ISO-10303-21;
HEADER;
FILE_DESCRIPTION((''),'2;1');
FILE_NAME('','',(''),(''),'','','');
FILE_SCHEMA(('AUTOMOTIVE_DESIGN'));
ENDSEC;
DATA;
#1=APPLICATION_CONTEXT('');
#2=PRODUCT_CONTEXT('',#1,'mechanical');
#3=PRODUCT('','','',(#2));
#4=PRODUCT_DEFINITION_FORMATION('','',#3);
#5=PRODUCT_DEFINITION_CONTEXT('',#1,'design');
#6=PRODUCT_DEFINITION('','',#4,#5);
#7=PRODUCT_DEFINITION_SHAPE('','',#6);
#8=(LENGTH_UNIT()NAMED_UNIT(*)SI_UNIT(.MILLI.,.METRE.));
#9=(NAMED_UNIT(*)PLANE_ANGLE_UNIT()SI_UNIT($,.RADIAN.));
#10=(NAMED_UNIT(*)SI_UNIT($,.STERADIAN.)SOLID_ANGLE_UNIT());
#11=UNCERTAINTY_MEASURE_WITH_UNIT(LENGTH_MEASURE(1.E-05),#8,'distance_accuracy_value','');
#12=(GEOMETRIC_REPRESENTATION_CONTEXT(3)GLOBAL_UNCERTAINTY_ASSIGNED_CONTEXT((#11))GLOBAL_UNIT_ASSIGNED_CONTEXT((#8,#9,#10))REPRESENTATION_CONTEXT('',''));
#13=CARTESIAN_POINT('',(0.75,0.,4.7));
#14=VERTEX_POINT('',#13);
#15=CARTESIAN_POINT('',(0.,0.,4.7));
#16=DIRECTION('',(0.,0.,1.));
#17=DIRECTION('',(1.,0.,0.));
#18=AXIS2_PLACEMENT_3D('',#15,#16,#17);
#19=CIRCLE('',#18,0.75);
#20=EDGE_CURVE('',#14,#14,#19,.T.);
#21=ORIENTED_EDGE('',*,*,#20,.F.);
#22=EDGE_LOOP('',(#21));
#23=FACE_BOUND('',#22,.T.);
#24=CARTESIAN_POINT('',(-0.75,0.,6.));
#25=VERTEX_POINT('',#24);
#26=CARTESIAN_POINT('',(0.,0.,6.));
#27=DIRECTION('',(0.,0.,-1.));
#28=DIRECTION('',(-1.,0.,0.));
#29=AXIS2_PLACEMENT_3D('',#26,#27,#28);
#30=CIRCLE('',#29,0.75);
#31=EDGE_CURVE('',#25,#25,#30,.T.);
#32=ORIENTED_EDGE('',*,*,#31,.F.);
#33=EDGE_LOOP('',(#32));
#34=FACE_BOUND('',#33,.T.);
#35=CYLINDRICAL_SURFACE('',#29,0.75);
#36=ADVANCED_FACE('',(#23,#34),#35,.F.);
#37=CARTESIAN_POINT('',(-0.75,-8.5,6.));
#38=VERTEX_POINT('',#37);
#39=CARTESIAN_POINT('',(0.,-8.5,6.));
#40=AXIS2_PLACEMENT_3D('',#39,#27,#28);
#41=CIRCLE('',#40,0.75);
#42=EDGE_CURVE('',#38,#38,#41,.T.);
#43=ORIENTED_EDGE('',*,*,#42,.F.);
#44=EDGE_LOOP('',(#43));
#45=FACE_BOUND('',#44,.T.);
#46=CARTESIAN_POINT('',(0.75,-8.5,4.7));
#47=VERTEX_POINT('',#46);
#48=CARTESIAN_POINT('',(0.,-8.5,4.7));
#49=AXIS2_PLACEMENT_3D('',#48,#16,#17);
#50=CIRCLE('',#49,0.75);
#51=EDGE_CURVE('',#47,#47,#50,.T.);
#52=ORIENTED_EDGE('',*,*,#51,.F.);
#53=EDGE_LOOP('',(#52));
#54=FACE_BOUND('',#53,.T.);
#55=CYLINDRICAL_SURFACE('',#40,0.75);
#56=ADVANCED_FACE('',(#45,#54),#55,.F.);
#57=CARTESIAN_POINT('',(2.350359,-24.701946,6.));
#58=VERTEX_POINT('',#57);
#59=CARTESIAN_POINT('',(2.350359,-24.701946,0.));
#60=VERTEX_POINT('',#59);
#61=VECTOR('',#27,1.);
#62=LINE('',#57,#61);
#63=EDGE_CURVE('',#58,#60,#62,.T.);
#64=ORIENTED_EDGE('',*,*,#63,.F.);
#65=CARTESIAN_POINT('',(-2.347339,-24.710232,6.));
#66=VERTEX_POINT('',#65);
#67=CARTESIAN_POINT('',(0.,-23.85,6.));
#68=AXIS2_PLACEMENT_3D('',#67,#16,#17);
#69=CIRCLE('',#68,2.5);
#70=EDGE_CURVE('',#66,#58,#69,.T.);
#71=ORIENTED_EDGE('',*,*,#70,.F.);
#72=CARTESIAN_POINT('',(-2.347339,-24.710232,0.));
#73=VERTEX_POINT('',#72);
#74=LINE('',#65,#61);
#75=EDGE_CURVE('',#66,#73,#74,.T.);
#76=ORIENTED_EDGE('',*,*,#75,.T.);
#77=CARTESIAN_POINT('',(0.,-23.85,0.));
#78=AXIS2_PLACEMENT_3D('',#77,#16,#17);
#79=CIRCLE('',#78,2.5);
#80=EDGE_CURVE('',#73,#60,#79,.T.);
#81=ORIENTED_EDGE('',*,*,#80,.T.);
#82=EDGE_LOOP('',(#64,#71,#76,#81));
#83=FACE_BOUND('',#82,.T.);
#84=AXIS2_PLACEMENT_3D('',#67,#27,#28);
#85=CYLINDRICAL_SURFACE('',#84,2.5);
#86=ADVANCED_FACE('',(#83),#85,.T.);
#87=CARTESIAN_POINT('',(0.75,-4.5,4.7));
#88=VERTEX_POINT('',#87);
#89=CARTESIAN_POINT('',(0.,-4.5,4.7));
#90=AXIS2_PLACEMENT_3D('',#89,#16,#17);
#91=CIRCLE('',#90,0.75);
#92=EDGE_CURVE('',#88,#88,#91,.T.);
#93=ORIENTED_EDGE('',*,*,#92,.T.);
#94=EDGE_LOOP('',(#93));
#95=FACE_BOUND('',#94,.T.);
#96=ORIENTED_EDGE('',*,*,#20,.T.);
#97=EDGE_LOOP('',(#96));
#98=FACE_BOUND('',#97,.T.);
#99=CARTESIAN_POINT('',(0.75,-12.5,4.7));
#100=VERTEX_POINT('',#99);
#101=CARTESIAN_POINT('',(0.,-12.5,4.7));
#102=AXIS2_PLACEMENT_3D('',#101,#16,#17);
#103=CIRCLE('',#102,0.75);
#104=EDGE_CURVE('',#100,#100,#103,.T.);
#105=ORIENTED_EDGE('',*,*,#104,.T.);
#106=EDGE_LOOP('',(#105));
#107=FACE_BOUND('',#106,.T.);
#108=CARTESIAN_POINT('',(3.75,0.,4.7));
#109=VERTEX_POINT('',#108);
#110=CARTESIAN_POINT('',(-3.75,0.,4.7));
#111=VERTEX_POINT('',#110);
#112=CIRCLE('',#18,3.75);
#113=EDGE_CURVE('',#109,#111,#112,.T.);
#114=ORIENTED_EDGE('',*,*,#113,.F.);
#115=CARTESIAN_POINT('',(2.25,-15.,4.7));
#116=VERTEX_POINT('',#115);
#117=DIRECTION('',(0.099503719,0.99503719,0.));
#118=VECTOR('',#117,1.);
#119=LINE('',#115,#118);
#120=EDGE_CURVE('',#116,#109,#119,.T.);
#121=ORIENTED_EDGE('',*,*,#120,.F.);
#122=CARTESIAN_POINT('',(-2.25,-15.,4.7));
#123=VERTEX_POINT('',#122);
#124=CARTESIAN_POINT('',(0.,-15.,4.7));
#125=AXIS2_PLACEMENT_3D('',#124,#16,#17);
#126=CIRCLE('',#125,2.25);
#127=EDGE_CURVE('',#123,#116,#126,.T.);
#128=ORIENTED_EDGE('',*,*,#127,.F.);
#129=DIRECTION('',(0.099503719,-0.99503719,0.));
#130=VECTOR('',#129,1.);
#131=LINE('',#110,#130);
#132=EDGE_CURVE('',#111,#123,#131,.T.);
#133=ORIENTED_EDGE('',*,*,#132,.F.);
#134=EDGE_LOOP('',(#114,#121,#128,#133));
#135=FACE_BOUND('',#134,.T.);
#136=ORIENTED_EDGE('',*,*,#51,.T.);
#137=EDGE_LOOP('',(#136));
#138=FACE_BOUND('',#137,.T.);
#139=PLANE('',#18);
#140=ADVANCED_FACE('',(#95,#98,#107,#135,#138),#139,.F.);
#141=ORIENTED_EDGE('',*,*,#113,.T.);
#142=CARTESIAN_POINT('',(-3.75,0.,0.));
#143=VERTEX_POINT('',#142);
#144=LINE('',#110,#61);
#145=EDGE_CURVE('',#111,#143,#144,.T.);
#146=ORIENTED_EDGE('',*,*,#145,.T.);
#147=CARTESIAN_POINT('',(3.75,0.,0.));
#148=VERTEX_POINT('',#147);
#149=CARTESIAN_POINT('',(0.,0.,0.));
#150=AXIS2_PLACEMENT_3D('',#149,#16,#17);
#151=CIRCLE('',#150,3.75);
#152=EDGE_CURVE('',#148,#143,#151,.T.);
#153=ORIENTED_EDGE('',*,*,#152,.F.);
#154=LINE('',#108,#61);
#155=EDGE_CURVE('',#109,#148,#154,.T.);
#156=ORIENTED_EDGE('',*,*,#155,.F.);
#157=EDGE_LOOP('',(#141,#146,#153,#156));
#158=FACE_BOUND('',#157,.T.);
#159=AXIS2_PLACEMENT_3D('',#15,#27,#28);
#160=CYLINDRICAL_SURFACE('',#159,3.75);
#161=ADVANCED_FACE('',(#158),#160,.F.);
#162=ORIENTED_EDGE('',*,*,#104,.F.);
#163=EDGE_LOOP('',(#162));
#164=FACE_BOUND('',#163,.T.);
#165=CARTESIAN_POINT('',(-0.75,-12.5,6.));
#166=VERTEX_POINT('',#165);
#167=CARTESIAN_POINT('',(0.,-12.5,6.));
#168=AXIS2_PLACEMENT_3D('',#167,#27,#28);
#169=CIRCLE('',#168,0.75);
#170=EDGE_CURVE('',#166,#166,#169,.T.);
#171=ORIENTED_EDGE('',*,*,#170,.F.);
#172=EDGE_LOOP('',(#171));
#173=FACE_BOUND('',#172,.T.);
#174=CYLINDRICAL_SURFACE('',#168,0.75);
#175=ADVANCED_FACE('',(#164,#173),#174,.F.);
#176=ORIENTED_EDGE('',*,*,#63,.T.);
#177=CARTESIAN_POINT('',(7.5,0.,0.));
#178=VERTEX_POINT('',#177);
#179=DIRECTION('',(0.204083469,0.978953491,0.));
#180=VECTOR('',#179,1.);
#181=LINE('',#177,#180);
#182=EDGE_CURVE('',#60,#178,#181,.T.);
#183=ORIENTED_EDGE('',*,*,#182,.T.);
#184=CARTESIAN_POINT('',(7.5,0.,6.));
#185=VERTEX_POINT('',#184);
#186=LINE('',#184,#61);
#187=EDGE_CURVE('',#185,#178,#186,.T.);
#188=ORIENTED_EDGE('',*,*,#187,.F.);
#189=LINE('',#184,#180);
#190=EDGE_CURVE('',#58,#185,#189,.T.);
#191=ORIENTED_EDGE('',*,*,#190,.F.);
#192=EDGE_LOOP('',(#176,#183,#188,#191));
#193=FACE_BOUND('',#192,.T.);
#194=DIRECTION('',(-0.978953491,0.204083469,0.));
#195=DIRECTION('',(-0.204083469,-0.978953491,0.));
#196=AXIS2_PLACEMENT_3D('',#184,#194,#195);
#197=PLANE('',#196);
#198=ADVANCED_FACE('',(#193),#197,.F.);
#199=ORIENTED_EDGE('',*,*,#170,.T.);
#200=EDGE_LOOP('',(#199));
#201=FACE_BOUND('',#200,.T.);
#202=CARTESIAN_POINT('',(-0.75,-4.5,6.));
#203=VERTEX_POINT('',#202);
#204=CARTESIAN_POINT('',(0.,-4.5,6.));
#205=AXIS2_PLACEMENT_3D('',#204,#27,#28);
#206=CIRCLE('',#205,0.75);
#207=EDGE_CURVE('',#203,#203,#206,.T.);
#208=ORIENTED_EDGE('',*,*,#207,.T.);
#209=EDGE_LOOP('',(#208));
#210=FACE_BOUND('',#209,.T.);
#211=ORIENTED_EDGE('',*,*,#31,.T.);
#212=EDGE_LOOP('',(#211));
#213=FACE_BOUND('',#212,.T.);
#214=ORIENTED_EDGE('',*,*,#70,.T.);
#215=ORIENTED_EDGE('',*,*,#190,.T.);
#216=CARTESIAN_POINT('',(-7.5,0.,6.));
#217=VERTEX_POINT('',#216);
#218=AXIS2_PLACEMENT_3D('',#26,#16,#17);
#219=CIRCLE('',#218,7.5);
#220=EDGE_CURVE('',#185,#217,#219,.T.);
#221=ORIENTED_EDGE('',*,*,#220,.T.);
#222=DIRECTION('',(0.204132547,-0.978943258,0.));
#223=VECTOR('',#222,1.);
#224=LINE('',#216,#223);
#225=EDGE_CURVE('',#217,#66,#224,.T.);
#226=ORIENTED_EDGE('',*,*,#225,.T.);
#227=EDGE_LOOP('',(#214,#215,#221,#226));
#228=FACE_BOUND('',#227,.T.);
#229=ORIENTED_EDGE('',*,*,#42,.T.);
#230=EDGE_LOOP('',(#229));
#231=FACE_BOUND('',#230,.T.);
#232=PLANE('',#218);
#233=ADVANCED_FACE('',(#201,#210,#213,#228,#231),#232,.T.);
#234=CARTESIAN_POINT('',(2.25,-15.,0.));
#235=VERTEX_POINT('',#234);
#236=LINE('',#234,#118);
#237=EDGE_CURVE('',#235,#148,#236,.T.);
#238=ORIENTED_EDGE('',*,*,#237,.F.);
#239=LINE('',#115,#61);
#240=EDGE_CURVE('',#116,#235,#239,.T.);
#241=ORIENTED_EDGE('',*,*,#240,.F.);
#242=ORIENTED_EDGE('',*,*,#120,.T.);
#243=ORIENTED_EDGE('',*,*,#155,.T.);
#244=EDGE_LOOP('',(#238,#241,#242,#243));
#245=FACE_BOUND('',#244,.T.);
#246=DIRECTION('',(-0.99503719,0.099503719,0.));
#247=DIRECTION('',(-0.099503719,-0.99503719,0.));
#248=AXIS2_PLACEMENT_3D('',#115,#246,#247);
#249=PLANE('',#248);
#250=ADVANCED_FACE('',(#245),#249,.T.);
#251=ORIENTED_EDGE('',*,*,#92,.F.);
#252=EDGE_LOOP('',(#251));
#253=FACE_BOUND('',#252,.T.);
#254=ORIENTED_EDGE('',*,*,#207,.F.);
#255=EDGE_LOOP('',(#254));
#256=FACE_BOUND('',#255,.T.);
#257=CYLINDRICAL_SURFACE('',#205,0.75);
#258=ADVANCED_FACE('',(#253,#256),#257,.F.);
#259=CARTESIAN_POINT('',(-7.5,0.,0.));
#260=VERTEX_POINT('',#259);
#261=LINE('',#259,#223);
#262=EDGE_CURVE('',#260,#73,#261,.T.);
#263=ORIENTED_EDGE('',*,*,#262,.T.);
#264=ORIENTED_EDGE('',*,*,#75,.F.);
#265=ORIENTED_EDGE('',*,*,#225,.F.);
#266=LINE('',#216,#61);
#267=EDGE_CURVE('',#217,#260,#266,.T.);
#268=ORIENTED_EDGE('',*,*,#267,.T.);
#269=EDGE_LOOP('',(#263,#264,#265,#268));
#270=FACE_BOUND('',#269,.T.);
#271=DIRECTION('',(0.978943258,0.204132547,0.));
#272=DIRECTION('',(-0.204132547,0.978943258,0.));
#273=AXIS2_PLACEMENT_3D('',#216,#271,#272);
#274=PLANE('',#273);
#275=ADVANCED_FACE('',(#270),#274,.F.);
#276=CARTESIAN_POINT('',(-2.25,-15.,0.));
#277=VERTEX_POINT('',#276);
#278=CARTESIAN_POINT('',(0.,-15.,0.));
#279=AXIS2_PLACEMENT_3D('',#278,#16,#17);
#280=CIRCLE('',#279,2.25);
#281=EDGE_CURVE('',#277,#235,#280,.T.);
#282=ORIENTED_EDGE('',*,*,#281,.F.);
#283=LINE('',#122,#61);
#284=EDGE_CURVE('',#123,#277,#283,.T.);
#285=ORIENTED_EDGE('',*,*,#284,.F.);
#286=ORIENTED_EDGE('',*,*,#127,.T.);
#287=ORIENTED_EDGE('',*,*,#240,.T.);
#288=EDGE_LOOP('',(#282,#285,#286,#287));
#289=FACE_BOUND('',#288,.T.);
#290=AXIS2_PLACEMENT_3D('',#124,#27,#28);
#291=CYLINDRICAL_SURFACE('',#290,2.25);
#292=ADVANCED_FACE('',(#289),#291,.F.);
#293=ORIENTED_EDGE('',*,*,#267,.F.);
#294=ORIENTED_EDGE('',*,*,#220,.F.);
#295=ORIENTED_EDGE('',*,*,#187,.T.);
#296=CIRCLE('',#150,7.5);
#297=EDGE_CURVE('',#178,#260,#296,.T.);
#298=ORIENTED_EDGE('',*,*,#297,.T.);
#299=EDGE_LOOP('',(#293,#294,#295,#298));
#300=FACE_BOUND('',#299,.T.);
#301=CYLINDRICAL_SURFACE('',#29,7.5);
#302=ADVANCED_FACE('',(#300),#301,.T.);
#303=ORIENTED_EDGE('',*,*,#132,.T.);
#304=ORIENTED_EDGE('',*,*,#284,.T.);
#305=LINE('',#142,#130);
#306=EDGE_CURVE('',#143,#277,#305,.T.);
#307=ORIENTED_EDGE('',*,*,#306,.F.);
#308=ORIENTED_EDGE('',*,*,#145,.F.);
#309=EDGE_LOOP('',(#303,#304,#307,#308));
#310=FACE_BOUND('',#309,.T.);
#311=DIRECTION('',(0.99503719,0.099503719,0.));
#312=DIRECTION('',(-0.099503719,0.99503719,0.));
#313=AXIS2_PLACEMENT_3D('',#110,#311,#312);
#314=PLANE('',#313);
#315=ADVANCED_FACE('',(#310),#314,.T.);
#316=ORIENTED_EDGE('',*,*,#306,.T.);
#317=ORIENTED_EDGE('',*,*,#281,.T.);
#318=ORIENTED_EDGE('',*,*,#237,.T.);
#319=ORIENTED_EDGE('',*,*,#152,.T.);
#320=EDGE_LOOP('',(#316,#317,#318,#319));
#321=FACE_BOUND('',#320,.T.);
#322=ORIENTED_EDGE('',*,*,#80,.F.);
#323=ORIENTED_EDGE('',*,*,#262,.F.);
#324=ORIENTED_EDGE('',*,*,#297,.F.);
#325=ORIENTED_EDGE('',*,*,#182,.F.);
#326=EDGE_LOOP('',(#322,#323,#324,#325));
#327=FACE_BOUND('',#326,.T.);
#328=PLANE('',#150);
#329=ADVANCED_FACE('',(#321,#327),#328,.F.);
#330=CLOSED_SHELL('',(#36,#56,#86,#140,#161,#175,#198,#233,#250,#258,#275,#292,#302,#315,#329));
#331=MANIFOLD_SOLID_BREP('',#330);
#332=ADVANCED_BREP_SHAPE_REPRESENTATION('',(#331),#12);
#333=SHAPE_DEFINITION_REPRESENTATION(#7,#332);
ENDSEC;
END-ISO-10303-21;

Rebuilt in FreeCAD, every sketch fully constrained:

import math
import FreeCAD as App
import Part
import Sketcher

V = App.Vector
Q = App.Units.Quantity

doc = App.newDocument("Part")
body = doc.addObject("PartDesign::Body", "Body")

# Sketch on XY plane
sketch1 = body.newObject("Sketcher::SketchObject", "Sketch")
sketch1.AttachmentSupport = (doc.getObject("XY_Plane"), [""])
sketch1.MapMode = "FlatFace"
sketch1.addGeometry([
    Part.LineSegment(V(-7.5, 0, 0), V(-2.3, -24.7, 0)),
    Part.ArcOfCircle(Part.Circle(V(0, -23.9, 0), V(0, 0, 1), 2.5), math.radians(-160), math.radians(-20)),
    Part.LineSegment(V(2.4, -24.7, 0), V(7.5, 0, 0)),
    Part.ArcOfCircle(Part.Circle(V(0, 0, 0), V(0, 0, 1), 7.5), math.radians(0), math.radians(180)),
], False)
sketch1.addConstraint([
    Sketcher.Constraint("Coincident", 0, 2, 1, 1),
    Sketcher.Constraint("Coincident", 1, 2, 2, 1),
    Sketcher.Constraint("Coincident", 2, 2, 3, 1),
    Sketcher.Constraint("Coincident", 3, 2, 0, 1),
    Sketcher.Constraint("Coincident", 3, 3, -1, 1),
    Sketcher.Constraint("PointOnObject", 1, 3, -2),
    Sketcher.Constraint("PointOnObject", 2, 2, -1),
    Sketcher.Constraint("PointOnObject", 3, 2, -1),
    Sketcher.Constraint("Radius", 1, Q("2.5 mm")),
    Sketcher.Constraint("Radius", 3, Q("7.5 mm")),
    Sketcher.Constraint("DistanceY", 1, 3, -1, 1, Q("23.85 mm")),
    Sketcher.Constraint("DistanceX", 0, 2, 1, 2, Q("4.697698 mm")),
    Sketcher.Constraint("Distance", 0, Q("25.241741 mm")),
])
pad1 = body.newObject("PartDesign::Pad", "Pad")
pad1.Profile = sketch1
pad1.Length = 6

# Sketch on XY plane
sketch2 = body.newObject("Sketcher::SketchObject", "Sketch001")
sketch2.AttachmentSupport = (doc.getObject("XY_Plane"), [""])
sketch2.MapMode = "FlatFace"
sketch2.addGeometry([
    Part.LineSegment(V(-3.8, 0, 0), V(-2.2, -15, 0)),
    Part.ArcOfCircle(Part.Circle(V(0, -15, 0), V(0, 0, 1), 2.2), math.radians(180), math.radians(360)),
    Part.LineSegment(V(2.2, -15, 0), V(3.8, 0, 0)),
    Part.ArcOfCircle(Part.Circle(V(0, 0, 0), V(0, 0, 1), 3.8), math.radians(0), math.radians(180)),
], False)
sketch2.addConstraint([
    Sketcher.Constraint("Coincident", 0, 2, 1, 1),
    Sketcher.Constraint("Coincident", 1, 2, 2, 1),
    Sketcher.Constraint("Coincident", 2, 2, 3, 1),
    Sketcher.Constraint("Coincident", 3, 2, 0, 1),
    Sketcher.Constraint("Coincident", 3, 3, -1, 1),
    Sketcher.Constraint("Symmetric", 0, 2, 1, 2, -2),
    Sketcher.Constraint("PointOnObject", 2, 2, -1),
    Sketcher.Constraint("PointOnObject", 3, 2, -1),
    Sketcher.Constraint("Horizontal", 1, 3, 0, 2),
    Sketcher.Constraint("Radius", 1, Q("2.25 mm")),
    Sketcher.Constraint("Radius", 3, Q("3.75 mm")),
    Sketcher.Constraint("DistanceY", 1, 3, -1, 1, Q("15 mm")),
])
pocket1 = body.newObject("PartDesign::Pocket", "Pocket")
pocket1.Profile = sketch2
pocket1.Length = 4.7
pocket1.Reversed = True

# Sketch on XY plane
sketch3 = body.newObject("Sketcher::SketchObject", "Sketch002")
sketch3.AttachmentSupport = (doc.getObject("XY_Plane"), [""])
sketch3.MapMode = "FlatFace"
sketch3.AttachmentOffset = App.Placement(V(0, 0, 4.7), App.Rotation())
sketch3.addGeometry(Part.Circle(V(0, 0, 0), V(0, 0, 1), 0.8), False)
sketch3.addConstraint([
    Sketcher.Constraint("Coincident", 0, 3, -1, 1),
    Sketcher.Constraint("Diameter", 0, Q("1.5 mm")),
])
pocket2 = body.newObject("PartDesign::Pocket", "Pocket001")
pocket2.Profile = sketch3
pocket2.Type = "ThroughAll"
pocket2.Midplane = True

# Sketch on XY plane
sketch4 = body.newObject("Sketcher::SketchObject", "Sketch003")
sketch4.AttachmentSupport = (doc.getObject("XY_Plane"), [""])
sketch4.MapMode = "FlatFace"
sketch4.AttachmentOffset = App.Placement(V(0, 0, 4.7), App.Rotation())
sketch4.addGeometry(Part.Circle(V(0, -4.5, 0), V(0, 0, 1), 0.8), False)
sketch4.addConstraint([
    Sketcher.Constraint("PointOnObject", 0, 3, -2),
    Sketcher.Constraint("Diameter", 0, Q("1.5 mm")),
    Sketcher.Constraint("DistanceY", 0, 3, -1, 1, Q("4.5 mm")),
])
pocket3 = body.newObject("PartDesign::Pocket", "Pocket002")
pocket3.Profile = sketch4
pocket3.Length = 57.593615
pocket3.Midplane = True
doc.recompute()

linearpattern = body.newObject("PartDesign::LinearPattern", "LinearPattern")
linearpattern.Originals = [pocket3]
linearpattern.Direction = (doc.getObject("Y_Axis"), [""])
linearpattern.Mode = "offset"
linearpattern.Offset = 4
linearpattern.Occurrences = 3
linearpattern.Reversed = True
body.Tip = linearpattern

doc.recompute()
